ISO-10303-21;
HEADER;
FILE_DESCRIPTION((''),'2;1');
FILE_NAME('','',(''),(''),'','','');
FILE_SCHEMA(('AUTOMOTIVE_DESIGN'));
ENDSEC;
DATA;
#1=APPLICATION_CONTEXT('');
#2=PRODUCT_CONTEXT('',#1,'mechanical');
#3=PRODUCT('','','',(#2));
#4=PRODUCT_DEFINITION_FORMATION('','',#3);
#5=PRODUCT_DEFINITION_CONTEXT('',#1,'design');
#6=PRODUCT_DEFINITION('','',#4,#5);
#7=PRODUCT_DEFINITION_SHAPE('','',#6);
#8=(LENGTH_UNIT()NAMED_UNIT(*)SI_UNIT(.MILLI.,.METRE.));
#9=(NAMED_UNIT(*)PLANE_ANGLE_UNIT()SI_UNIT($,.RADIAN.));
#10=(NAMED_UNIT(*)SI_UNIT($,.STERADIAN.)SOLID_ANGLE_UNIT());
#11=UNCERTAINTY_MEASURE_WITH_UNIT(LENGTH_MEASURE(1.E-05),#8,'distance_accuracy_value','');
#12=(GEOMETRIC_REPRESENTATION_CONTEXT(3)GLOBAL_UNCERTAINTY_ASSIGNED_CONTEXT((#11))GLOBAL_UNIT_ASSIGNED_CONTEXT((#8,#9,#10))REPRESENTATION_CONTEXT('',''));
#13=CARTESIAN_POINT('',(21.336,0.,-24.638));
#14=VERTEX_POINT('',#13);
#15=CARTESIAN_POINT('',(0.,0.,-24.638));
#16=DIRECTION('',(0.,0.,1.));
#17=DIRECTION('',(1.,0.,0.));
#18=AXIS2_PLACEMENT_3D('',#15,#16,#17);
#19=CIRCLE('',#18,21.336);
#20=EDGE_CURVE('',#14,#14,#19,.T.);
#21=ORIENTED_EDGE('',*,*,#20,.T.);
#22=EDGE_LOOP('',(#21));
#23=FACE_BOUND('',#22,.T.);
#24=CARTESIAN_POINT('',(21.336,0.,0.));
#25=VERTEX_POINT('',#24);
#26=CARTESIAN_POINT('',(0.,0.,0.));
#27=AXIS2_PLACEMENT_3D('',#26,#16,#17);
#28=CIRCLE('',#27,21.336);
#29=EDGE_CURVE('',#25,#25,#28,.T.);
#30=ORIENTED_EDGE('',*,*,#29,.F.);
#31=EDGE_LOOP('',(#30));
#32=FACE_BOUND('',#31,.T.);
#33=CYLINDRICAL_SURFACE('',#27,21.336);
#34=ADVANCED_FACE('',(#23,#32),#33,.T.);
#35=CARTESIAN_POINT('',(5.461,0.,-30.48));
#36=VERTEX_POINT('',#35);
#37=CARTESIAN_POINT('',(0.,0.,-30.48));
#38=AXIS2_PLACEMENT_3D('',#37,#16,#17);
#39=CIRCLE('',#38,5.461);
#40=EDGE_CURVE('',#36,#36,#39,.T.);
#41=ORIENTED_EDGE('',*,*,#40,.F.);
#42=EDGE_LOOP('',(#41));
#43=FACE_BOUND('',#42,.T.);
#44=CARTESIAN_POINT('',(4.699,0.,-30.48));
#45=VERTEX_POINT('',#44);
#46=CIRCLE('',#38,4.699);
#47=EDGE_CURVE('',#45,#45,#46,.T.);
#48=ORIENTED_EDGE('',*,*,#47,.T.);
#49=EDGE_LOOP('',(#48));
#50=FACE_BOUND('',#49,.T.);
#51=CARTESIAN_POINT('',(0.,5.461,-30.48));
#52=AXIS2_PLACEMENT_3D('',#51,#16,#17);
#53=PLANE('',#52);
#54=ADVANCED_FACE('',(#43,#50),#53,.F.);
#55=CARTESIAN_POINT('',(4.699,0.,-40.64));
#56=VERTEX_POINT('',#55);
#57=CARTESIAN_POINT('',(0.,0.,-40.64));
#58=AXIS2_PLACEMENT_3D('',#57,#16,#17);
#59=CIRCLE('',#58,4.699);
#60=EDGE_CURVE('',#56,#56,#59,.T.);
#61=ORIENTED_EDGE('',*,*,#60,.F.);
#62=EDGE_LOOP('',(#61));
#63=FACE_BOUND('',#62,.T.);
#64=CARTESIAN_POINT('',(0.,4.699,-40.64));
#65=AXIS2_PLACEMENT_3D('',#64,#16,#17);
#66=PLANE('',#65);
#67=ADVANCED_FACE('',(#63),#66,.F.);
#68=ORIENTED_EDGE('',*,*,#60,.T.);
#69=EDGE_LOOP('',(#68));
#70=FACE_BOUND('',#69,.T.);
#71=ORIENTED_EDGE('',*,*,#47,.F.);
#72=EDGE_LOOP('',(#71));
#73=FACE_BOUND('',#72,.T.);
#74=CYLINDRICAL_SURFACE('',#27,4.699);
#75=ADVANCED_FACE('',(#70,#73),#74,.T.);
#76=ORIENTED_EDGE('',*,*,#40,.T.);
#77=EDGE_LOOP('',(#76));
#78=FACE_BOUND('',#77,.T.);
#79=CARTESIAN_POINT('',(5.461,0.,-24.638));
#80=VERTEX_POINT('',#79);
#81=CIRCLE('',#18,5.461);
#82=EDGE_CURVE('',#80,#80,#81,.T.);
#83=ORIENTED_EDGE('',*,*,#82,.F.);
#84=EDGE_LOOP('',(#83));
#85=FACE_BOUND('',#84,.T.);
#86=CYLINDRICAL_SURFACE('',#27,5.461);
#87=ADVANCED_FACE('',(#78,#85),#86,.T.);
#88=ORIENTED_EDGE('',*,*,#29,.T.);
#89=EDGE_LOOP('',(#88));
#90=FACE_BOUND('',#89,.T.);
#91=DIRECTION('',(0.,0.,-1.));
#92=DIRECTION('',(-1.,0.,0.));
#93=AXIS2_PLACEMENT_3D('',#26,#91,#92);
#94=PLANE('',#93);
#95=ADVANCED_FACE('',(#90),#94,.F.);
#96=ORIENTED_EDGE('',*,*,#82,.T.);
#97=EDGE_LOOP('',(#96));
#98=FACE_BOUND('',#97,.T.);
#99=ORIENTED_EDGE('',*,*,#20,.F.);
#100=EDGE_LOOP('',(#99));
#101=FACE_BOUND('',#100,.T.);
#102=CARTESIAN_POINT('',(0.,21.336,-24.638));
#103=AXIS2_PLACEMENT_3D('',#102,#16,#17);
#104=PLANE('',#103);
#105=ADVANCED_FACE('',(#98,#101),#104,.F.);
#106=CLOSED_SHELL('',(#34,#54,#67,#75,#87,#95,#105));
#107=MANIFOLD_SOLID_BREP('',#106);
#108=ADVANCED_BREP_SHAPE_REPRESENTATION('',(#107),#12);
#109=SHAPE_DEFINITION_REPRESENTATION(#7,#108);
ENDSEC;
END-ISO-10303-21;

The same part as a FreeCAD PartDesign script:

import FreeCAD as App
import Part
import Sketcher

V = App.Vector
Q = App.Units.Quantity


def add_polygon(sketch, points):
    """Adds a closed chain of lines whose ends are joined by coincident constraints."""
    first, n = sketch.GeometryCount, len(points)
    for a, b in zip(points, points[1:] + points[:1]):
        sketch.addGeometry(Part.LineSegment(App.Vector(*a, 0), App.Vector(*b, 0)), False)
    for i in range(n):
        sketch.addConstraint(Sketcher.Constraint("Coincident", first + i, 2, first + (i + 1) % n, 1))

doc = App.newDocument("Part")
body = doc.addObject("PartDesign::Body", "Body")

sketch1 = body.newObject("Sketcher::SketchObject", "Sketch")
sketch1.AttachmentSupport = (doc.getObject("YZ_Plane"), [""])
sketch1.MapMode = "FlatFace"
add_polygon(sketch1, [(21.3, 0), (0, 0), (0, -40.6), (4.7, -40.6), (4.7, -30.5), (5.5, -30.5), (5.5, -24.6), (21.3, -24.6)])
sketch1.addConstraint([
    Sketcher.Constraint("Horizontal", 0),
    Sketcher.Constraint("Vertical", 1),
    Sketcher.Constraint("Horizontal", 2),
    Sketcher.Constraint("Vertical", 3),
    Sketcher.Constraint("Horizontal", 4),
    Sketcher.Constraint("Vertical", 5),
    Sketcher.Constraint("Horizontal", 6),
    Sketcher.Constraint("Vertical", 7),
    Sketcher.Constraint("Coincident", 0, 2, -1, 1),
    Sketcher.Constraint("DistanceY", 1, 2, 1, 1, Q("1.6 in")),
    Sketcher.Constraint("DistanceY", 3, 1, 3, 2, Q("0.4 in")),
    Sketcher.Constraint("DistanceX", 0, 2, 0, 1, Q("0.84 in")),
    Sketcher.Constraint("DistanceX", 4, 1, 4, 2, Q("0.03 in")),
    Sketcher.Constraint("DistanceY", 5, 1, 5, 2, Q("0.23 in")),
    Sketcher.Constraint("DistanceX", 2, 1, 2, 2, Q("0.185 in")),
])
revolution = body.newObject("PartDesign::Revolution", "Revolution")
revolution.Profile = sketch1
revolution.ReferenceAxis = (sketch1, ["V_Axis"])
revolution.Angle = 360

doc.recompute()
